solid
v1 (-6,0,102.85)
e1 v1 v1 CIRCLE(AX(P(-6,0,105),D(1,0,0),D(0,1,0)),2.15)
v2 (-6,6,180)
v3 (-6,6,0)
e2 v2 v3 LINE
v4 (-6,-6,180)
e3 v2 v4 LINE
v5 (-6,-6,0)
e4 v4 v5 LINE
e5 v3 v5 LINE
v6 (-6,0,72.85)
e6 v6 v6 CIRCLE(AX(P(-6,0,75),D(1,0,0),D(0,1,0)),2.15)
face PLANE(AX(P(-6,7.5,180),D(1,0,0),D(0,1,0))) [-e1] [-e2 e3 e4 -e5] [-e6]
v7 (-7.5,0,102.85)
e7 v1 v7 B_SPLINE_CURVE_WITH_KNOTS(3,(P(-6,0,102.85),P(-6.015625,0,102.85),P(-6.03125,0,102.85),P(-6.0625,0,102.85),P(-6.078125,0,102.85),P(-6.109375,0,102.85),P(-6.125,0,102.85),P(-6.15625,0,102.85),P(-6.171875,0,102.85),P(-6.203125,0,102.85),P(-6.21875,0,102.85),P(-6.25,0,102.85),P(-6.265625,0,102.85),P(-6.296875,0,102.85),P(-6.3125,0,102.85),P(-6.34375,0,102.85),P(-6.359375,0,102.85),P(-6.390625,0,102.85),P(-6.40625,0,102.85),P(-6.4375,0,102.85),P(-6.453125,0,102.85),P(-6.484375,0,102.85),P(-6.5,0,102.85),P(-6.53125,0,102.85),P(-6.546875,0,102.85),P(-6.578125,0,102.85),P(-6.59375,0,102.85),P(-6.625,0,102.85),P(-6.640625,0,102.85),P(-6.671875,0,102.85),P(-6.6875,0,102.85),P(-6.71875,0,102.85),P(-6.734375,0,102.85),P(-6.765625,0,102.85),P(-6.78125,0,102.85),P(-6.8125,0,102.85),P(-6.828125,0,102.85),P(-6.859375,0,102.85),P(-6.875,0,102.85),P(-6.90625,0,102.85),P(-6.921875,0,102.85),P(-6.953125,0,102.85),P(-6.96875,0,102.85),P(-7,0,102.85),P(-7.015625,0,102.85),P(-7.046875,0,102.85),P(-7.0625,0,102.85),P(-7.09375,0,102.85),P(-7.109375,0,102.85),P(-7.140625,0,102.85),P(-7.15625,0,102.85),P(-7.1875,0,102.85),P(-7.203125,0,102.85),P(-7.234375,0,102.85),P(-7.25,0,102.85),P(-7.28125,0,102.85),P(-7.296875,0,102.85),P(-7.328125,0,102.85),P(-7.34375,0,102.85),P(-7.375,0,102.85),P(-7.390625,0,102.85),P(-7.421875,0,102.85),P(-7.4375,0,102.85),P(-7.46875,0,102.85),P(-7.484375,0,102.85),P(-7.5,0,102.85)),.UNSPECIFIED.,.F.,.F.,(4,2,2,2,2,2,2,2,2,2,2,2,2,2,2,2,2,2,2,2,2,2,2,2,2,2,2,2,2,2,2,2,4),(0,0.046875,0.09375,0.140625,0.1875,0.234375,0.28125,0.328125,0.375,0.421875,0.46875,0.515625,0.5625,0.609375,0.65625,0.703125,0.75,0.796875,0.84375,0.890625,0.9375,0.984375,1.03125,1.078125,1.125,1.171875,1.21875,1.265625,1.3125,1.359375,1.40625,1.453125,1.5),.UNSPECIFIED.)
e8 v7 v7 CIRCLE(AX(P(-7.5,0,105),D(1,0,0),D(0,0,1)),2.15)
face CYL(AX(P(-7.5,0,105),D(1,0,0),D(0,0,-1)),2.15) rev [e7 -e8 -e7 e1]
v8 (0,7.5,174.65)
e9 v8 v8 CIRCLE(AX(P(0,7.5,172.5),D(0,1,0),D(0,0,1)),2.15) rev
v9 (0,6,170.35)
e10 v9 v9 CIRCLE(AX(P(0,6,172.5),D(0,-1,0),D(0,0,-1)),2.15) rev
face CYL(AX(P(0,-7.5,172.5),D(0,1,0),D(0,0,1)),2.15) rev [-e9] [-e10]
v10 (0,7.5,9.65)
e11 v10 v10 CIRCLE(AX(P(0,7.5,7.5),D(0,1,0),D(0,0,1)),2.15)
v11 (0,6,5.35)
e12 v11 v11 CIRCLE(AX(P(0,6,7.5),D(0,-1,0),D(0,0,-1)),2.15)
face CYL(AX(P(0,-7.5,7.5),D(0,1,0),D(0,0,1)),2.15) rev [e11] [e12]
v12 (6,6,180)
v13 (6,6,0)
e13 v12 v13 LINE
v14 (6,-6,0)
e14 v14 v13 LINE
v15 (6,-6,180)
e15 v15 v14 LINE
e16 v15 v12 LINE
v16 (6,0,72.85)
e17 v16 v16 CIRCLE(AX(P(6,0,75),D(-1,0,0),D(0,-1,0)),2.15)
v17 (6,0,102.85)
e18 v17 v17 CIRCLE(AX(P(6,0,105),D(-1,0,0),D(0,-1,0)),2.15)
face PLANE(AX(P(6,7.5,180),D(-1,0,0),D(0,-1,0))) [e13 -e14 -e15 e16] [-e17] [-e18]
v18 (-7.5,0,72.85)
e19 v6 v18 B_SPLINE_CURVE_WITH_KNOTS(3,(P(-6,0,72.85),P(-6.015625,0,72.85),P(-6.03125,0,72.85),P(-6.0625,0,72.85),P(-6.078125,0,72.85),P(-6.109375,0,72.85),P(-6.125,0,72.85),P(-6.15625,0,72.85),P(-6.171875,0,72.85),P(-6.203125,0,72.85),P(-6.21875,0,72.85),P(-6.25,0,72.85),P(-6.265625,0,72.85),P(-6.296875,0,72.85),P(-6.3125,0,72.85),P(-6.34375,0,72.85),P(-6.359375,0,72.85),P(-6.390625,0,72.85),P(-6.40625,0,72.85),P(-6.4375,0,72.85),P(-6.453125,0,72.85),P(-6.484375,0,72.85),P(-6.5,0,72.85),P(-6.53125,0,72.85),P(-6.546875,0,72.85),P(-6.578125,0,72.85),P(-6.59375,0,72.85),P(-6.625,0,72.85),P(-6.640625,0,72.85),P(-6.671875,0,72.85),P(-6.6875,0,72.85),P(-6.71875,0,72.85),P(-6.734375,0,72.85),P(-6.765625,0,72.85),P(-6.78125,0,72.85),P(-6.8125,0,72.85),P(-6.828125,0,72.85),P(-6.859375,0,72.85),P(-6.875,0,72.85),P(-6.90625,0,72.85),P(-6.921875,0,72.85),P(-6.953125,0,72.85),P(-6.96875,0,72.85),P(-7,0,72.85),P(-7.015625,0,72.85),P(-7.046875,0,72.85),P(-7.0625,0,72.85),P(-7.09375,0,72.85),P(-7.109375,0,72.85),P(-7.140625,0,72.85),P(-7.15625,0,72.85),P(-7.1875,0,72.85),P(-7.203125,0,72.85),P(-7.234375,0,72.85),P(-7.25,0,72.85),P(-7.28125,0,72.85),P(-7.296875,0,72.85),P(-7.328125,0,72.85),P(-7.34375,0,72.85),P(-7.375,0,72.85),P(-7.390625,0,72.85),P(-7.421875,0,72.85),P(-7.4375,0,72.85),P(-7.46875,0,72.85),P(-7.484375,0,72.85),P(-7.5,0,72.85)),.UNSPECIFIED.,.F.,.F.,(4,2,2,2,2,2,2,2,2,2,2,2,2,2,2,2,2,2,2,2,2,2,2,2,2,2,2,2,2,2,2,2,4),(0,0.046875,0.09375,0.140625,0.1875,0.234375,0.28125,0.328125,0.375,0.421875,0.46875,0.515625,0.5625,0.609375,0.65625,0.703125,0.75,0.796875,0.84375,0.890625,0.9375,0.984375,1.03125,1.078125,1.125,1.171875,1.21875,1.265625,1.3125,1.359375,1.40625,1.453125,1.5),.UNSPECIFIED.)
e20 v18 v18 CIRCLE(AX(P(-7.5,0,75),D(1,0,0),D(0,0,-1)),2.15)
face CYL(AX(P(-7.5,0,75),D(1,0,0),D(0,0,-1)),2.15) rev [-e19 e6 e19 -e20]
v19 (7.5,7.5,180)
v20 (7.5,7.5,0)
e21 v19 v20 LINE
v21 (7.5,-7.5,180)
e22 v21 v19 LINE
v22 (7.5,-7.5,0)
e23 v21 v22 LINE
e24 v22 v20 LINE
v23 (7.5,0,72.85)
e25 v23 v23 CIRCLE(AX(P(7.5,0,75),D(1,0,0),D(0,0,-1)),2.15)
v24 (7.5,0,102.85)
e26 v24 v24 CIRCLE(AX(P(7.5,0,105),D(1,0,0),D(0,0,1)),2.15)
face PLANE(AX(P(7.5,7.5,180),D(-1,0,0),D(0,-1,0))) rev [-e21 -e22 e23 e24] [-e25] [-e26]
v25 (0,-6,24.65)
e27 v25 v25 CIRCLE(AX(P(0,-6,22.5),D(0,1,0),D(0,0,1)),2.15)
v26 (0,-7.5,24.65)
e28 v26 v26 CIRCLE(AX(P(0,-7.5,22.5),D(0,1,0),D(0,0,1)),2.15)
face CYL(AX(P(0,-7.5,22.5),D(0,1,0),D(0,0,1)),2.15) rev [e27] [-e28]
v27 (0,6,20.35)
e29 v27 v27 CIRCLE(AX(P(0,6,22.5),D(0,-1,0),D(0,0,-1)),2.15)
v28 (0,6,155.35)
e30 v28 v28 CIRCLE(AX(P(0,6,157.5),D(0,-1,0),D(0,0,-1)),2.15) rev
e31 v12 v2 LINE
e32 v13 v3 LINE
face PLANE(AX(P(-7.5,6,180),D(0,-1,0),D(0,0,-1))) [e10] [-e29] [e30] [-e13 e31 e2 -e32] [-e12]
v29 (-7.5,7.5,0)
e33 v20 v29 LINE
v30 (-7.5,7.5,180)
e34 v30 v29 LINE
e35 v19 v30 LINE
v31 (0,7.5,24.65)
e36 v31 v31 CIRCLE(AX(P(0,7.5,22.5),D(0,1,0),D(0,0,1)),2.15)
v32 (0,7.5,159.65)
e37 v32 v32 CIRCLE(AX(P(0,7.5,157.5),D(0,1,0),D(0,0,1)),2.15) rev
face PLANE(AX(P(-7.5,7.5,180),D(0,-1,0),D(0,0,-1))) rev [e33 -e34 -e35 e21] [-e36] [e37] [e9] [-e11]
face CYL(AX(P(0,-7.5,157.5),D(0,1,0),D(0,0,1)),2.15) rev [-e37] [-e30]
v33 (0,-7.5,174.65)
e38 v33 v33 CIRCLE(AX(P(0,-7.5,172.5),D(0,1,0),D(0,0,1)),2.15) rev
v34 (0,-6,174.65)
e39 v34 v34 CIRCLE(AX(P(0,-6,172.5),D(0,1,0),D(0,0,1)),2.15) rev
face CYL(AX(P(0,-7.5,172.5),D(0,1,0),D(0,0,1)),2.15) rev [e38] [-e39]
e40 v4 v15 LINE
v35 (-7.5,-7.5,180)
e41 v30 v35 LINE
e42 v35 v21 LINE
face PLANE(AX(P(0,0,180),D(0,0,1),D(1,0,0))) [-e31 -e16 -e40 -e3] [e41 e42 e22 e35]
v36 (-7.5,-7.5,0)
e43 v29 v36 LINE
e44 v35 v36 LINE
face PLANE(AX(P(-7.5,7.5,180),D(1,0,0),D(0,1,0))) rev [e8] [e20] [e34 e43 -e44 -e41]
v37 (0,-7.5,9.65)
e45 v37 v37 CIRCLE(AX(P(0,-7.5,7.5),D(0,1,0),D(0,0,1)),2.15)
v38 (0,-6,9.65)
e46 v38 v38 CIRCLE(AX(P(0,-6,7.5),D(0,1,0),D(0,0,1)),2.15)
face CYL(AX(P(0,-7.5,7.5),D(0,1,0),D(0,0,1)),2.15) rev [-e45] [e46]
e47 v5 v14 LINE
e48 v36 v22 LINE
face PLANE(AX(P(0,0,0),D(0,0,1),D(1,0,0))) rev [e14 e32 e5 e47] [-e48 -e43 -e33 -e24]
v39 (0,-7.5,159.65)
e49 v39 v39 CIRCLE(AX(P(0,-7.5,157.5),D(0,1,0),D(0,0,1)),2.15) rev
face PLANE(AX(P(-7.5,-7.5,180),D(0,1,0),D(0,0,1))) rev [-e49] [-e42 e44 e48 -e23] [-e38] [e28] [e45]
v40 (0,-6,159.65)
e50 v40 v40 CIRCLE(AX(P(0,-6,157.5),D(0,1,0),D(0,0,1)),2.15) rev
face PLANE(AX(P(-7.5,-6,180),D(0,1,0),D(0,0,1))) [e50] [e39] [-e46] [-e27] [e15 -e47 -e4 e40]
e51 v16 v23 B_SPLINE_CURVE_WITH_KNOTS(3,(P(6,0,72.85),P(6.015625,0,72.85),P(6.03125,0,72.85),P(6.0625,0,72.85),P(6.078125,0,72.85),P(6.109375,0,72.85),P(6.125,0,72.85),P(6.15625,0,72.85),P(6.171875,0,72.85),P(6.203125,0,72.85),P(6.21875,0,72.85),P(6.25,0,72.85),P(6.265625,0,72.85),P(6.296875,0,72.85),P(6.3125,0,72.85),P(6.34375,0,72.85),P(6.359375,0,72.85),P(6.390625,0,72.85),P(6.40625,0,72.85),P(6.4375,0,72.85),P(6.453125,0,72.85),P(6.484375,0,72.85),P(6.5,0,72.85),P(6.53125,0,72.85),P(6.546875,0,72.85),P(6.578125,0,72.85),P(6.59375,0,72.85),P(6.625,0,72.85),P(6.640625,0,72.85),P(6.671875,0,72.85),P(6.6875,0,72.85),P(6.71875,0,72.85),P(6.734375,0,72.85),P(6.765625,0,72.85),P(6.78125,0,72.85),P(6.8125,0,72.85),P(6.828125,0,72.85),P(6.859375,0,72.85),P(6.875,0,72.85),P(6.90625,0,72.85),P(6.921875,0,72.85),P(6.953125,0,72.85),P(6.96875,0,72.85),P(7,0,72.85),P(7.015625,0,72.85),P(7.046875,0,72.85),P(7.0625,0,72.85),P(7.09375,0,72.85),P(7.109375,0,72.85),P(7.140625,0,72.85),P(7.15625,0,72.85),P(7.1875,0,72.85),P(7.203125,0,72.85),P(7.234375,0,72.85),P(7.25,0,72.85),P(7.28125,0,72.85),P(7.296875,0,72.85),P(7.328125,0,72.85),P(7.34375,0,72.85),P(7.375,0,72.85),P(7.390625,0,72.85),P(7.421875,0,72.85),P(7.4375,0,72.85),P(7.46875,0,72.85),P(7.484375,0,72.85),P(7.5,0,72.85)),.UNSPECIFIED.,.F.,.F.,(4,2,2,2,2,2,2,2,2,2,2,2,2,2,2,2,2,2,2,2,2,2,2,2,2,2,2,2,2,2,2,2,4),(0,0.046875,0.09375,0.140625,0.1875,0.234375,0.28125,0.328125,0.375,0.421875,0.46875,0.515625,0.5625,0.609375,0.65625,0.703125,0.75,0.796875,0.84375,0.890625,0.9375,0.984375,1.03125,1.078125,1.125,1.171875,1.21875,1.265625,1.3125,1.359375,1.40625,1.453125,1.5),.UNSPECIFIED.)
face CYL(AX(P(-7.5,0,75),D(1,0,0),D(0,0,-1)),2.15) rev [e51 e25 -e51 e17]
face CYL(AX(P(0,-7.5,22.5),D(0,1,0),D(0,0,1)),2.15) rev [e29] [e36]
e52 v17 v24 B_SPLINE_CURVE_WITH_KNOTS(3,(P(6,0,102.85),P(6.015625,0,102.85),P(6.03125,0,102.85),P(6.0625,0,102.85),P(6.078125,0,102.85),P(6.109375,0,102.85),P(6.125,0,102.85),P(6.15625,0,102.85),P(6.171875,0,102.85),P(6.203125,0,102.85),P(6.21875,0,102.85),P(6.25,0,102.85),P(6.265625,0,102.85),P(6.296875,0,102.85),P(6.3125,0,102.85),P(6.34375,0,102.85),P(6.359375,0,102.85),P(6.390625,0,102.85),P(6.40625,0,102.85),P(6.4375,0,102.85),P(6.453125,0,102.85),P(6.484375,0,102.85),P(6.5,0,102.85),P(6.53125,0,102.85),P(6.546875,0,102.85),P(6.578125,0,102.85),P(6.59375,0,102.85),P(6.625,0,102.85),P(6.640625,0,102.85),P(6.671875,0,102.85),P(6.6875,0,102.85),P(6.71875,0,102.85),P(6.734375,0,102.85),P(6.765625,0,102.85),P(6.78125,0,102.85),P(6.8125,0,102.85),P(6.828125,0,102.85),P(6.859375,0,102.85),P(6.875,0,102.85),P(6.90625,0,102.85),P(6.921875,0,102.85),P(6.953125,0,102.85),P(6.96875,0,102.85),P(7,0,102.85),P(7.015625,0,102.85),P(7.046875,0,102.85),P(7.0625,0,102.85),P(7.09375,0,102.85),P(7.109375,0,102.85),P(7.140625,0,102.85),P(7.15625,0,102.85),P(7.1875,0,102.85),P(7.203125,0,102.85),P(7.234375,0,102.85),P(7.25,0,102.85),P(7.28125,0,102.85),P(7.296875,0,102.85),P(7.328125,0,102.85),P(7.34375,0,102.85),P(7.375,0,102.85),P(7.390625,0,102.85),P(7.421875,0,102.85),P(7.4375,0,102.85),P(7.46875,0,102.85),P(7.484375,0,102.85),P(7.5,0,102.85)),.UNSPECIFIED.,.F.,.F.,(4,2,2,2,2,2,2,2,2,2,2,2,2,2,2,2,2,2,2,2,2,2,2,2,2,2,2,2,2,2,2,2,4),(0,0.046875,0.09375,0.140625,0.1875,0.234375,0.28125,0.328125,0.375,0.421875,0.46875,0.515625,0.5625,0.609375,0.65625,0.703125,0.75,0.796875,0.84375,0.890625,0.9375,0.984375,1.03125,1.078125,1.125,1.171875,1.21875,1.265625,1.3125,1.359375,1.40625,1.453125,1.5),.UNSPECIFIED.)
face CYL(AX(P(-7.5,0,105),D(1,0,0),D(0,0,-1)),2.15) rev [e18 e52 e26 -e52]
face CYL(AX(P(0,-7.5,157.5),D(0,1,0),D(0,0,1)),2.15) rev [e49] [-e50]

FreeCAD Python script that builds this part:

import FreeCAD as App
import Part
import Sketcher

V = App.Vector
Q = App.Units.Quantity


def add_polygon(sketch, points):
    """Adds a closed chain of lines whose ends are joined by coincident constraints."""
    first, n = sketch.GeometryCount, len(points)
    for a, b in zip(points, points[1:] + points[:1]):
        sketch.addGeometry(Part.LineSegment(App.Vector(*a, 0), App.Vector(*b, 0)), False)
    for i in range(n):
        sketch.addConstraint(Sketcher.Constraint("Coincident", first + i, 2, first + (i + 1) % n, 1))

doc = App.newDocument("Part")
body = doc.addObject("PartDesign::Body", "Body")

sketch1 = body.newObject("Sketcher::SketchObject", "Sketch")
sketch1.AttachmentSupport = (doc.getObject("XY_Plane"), [""])
sketch1.MapMode = "FlatFace"
add_polygon(sketch1, [(-8, 8), (-8, -8), (8, -8), (8, 8)])
add_polygon(sketch1, [(6, -6), (-6, -6), (-6, 6), (6, 6)])
sketch1.addConstraint([
    Sketcher.Constraint("Vertical", 0),
    Sketcher.Constraint("Horizontal", 1),
    Sketcher.Constraint("Vertical", 2),
    Sketcher.Constraint("Horizontal", 3),
    Sketcher.Constraint("Horizontal", 4),
    Sketcher.Constraint("Vertical", 5),
    Sketcher.Constraint("Horizontal", 6),
    Sketcher.Constraint("Vertical", 7),
    Sketcher.Constraint("Symmetric", 0, 2, 2, 2, -1, 1),
    Sketcher.Constraint("Symmetric", 4, 2, 6, 2, -1, 1),
    Sketcher.Constraint("Equal", 3, 0),
    Sketcher.Constraint("Equal", 6, 5),
    Sketcher.Constraint("DistanceX", 1, 1, 1, 2, Q("15 mm")),
    Sketcher.Constraint("DistanceX", 4, 2, 4, 1, Q("12 mm")),
])
pad1 = body.newObject("PartDesign::Pad", "Pad")
pad1.Profile = sketch1
pad1.Length = 180

sketch2 = body.newObject("Sketcher::SketchObject", "Sketch001")
sketch2.AttachmentSupport = (doc.getObject("YZ_Plane"), [""])
sketch2.MapMode = "FlatFace"
sketch2.AttachmentOffset = App.Placement(V(0, 0, 7.5), App.Rotation())
sketch2.addGeometry([
    Part.Circle(V(0, 75, 0), V(0, 0, 1), 2.1),
    Part.Circle(V(0, 105, 0), V(0, 0, 1), 2.1),
], False)
sketch2.addConstraint([
    Sketcher.Constraint("Equal", 0, 1),
    Sketcher.Constraint("PointOnObject", 0, 3, -2),
    Sketcher.Constraint("PointOnObject", 1, 3, -2),
    Sketcher.Constraint("Diameter", 0, Q("4.3 mm")),
    Sketcher.Constraint("DistanceY", -1, 1, 0, 3, Q("75 mm")),
    Sketcher.Constraint("DistanceY", -1, 1, 1, 3, Q("105 mm")),
])
pocket1 = body.newObject("PartDesign::Pocket", "Pocket")
pocket1.Profile = sketch2
pocket1.Type = "ThroughAll"

sketch3 = body.newObject("Sketcher::SketchObject", "Sketch002")
sketch3.AttachmentSupport = (doc.getObject("XZ_Plane"), [""])
sketch3.MapMode = "FlatFace"
sketch3.AttachmentOffset = App.Placement(V(0, 0, -7.5), App.Rotation())
sketch3.addGeometry([
    Part.Circle(V(0, 7.5, 0), V(0, 0, 1), 2.1),
    Part.Circle(V(0, 22.5, 0), V(0, 0, 1), 2.1),
    Part.Circle(V(0, 172.5, 0), V(0, 0, 1), 2.1),
    Part.Circle(V(0, 157.5, 0), V(0, 0, 1), 2.1),
], False)
sketch3.addConstraint([
    Sketcher.Constraint("Equal", 0, 1),
    Sketcher.Constraint("Equal", 1, 2),
    Sketcher.Constraint("Equal", 2, 3),
    Sketcher.Constraint("PointOnObject", 0, 3, -2),
    Sketcher.Constraint("PointOnObject", 1, 3, -2),
    Sketcher.Constraint("PointOnObject", 2, 3, -2),
    Sketcher.Constraint("PointOnObject", 3, 3, -2),
    Sketcher.Constraint("Diameter", 0, Q("4.3 mm")),
    Sketcher.Constraint("DistanceY", 0, 3, 1, 3, Q("15 mm")),
    Sketcher.Constraint("DistanceY", 1, 3, 2, 3, Q("150 mm")),
    Sketcher.Constraint("DistanceY", 3, 3, 2, 3, Q("15 mm")),
    Sketcher.Constraint("DistanceY", -1, 1, 0, 3, Q("7.5 mm")),
])
pocket2 = body.newObject("PartDesign::Pocket", "Pocket001")
pocket2.Profile = sketch3
pocket2.Type = "ThroughAll"
pocket2.Reversed = True

doc.recompute()
